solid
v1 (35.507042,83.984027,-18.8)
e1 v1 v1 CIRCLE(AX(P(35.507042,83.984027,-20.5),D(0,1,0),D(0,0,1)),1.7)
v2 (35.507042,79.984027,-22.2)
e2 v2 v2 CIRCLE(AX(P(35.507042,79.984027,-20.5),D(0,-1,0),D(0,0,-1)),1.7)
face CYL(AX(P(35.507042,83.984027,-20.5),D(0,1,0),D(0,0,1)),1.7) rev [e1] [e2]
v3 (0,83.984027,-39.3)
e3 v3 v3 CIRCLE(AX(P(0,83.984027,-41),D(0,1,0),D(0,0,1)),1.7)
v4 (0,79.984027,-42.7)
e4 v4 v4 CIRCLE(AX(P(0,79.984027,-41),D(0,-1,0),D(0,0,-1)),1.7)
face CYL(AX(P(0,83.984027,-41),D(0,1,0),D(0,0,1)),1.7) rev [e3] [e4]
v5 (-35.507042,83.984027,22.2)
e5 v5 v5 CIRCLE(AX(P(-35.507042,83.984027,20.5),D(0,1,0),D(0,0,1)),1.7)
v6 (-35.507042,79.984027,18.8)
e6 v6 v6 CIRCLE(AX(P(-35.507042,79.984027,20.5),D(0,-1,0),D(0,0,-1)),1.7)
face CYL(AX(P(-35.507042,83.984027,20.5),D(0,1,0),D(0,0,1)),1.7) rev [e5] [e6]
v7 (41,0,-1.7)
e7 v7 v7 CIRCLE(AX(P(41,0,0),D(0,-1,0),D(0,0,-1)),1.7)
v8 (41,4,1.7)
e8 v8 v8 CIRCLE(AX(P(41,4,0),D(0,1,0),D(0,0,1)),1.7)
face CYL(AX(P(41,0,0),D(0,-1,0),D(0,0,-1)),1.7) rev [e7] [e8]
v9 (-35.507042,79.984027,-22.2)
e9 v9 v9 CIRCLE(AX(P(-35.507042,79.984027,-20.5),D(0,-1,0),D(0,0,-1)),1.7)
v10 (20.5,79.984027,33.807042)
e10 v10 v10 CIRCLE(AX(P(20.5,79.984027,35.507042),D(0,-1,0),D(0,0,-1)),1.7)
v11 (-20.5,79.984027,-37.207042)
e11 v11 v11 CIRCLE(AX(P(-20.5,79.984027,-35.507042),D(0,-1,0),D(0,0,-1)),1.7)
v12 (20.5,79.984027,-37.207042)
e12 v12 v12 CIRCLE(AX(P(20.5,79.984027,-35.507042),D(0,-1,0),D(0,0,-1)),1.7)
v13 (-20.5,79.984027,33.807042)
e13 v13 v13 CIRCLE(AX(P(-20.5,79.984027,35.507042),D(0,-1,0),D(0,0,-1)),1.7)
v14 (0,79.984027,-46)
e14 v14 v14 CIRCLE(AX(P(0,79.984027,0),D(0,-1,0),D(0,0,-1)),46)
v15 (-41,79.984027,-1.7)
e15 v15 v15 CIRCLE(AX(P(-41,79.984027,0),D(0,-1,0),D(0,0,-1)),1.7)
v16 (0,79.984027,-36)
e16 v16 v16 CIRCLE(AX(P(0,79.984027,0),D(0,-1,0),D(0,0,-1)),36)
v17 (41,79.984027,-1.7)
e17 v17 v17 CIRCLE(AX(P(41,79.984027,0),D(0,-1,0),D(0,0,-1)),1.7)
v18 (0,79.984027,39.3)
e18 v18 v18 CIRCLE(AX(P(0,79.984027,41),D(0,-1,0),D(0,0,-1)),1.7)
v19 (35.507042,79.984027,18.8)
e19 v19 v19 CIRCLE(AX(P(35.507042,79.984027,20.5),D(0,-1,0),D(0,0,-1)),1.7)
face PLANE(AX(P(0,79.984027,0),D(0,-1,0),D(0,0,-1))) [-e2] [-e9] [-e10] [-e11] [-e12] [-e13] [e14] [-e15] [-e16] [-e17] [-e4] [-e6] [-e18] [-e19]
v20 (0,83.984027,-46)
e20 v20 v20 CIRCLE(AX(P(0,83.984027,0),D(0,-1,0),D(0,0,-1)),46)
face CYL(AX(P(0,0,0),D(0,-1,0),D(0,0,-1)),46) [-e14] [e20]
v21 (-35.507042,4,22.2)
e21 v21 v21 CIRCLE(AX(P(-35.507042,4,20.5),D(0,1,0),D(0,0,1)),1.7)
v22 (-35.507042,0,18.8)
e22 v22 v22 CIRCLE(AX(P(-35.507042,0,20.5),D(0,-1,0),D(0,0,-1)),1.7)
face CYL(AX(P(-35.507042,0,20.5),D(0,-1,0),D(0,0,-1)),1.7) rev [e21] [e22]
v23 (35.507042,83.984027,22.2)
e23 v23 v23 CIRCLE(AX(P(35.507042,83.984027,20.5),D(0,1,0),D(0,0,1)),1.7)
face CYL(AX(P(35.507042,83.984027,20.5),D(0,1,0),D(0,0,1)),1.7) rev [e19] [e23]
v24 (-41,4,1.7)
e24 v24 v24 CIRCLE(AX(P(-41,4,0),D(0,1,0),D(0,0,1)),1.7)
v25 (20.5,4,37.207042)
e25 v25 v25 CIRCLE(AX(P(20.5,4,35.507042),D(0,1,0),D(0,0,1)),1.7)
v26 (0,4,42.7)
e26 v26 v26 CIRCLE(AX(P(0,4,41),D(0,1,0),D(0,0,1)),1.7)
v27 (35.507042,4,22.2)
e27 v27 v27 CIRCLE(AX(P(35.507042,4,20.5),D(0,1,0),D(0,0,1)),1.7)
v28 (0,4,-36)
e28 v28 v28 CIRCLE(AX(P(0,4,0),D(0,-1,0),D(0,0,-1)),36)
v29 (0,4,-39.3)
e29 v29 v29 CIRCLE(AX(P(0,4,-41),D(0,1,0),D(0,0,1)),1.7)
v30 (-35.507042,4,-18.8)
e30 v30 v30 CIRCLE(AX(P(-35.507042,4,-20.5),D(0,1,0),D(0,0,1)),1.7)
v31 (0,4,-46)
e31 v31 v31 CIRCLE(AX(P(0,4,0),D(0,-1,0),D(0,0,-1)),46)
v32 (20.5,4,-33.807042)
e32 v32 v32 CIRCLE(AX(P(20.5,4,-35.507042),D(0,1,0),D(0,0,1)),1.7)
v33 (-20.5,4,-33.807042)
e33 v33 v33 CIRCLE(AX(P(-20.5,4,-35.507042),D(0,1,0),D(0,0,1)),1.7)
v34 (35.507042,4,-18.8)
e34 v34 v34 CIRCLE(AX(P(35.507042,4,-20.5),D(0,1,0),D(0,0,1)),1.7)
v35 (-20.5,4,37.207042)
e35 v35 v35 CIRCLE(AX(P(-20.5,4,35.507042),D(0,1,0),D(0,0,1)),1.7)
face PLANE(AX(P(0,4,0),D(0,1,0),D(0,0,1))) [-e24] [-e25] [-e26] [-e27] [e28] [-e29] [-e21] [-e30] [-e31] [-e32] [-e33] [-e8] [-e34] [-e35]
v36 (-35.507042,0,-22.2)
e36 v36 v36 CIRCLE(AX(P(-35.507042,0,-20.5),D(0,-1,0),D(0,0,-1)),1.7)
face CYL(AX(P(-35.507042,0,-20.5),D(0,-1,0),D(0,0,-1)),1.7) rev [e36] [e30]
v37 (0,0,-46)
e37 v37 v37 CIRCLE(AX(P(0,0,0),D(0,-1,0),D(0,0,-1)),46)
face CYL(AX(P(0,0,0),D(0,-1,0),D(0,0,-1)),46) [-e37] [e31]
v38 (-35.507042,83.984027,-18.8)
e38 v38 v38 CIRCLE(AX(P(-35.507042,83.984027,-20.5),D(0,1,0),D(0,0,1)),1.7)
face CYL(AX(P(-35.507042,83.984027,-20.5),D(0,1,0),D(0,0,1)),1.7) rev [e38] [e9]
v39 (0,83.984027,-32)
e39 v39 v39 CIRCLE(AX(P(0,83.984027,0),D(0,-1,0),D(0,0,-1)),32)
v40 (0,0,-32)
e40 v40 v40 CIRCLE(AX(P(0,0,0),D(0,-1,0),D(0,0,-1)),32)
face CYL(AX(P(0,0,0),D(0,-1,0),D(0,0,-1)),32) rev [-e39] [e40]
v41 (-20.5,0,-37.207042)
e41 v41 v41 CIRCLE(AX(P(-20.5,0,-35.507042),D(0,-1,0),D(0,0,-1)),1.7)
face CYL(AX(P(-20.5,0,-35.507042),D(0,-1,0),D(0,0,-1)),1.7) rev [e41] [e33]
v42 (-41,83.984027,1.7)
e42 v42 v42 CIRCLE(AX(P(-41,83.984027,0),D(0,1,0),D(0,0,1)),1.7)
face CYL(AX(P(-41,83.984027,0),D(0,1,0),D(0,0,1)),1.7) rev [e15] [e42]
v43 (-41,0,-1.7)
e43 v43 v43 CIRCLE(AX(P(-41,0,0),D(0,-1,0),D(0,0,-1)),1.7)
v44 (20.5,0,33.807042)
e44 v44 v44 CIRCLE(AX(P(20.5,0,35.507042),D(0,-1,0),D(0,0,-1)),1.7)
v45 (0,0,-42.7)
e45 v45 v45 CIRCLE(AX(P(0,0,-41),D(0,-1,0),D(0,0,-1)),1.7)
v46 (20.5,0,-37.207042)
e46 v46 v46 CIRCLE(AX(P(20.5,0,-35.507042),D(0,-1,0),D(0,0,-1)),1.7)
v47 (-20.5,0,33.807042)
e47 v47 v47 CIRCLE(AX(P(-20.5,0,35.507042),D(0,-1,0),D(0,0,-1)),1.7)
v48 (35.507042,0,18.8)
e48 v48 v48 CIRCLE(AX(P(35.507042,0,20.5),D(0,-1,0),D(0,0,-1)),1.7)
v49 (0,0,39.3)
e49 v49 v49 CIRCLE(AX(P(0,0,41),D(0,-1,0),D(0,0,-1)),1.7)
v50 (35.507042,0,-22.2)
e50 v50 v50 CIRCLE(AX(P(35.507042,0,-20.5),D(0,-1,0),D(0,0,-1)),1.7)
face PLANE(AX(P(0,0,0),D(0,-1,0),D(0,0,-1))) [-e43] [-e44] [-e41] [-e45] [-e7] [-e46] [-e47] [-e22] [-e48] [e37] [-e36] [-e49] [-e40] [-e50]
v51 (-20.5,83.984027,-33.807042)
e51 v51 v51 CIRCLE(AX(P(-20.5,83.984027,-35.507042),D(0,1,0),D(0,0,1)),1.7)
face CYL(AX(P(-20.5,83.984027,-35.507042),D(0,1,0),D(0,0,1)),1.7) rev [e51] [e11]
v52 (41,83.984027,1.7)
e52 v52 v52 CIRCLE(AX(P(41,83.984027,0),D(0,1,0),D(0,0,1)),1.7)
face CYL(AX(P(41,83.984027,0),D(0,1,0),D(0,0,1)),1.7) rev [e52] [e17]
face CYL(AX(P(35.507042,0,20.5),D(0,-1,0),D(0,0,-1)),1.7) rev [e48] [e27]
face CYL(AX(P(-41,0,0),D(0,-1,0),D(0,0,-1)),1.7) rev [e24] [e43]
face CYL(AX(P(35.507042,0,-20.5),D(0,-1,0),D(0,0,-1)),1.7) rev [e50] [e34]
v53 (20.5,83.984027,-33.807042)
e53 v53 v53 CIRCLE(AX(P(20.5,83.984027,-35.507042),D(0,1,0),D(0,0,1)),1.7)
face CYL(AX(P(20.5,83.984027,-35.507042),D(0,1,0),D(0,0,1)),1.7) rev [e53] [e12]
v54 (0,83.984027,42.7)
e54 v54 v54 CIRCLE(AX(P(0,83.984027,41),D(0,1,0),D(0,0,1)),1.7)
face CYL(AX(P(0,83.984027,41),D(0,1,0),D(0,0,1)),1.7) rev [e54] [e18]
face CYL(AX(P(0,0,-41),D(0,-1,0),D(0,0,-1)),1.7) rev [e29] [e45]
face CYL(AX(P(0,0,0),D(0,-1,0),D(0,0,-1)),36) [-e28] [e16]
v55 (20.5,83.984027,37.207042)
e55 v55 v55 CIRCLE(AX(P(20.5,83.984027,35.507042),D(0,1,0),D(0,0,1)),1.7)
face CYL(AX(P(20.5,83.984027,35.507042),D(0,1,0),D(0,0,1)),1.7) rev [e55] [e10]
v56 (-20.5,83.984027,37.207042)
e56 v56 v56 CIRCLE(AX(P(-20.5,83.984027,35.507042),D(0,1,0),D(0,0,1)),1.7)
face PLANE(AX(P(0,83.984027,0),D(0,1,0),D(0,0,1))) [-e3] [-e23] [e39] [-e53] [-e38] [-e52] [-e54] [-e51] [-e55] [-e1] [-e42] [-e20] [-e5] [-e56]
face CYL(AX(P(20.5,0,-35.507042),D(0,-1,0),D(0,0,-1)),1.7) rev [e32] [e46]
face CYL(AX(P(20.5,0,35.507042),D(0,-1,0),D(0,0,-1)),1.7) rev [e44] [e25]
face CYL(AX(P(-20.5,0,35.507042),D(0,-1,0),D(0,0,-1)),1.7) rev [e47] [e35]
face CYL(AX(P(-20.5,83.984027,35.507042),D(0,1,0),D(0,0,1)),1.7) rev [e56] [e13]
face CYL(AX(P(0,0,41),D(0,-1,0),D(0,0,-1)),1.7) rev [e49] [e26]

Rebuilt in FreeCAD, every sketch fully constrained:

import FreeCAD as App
import Part
import Sketcher

doc = App.newDocument("Part")
body = doc.addObject("PartDesign::Body", "Body")

# Sketch on XY plane
sketch1 = body.newObject("Sketcher::SketchObject", "Sketch")
sketch1.AttachmentSupport = (doc.getObject("XY_Plane"), [""])
sketch1.MapMode = "FlatFace"
sketch1.addGeometry([
    Part.LineSegment(App.Vector(-32, 0, 0), App.Vector(-32, 83.984027, 0)),  # 0
    Part.LineSegment(App.Vector(-32, 83.984027, 0), App.Vector(-46, 83.984027, 0)),  # 1
    Part.LineSegment(App.Vector(-46, 83.984027, 0), App.Vector(-46, 79.984027, 0)),  # 2
    Part.LineSegment(App.Vector(-46, 79.984027, 0), App.Vector(-36, 79.984027, 0)),  # 3
    Part.LineSegment(App.Vector(-36, 79.984027, 0), App.Vector(-36, 4, 0)),  # 4
    Part.LineSegment(App.Vector(-36, 4, 0), App.Vector(-46, 4, 0)),  # 5
    Part.LineSegment(App.Vector(-46, 4, 0), App.Vector(-46, 0, 0)),  # 6
    Part.LineSegment(App.Vector(-46, 0, 0), App.Vector(-32, 0, 0)),  # 7
], False)
sketch1.addConstraint([
    Sketcher.Constraint("Coincident", 0, 2, 1, 1),
    Sketcher.Constraint("Coincident", 1, 2, 2, 1),
    Sketcher.Constraint("Coincident", 2, 2, 3, 1),
    Sketcher.Constraint("Coincident", 3, 2, 4, 1),
    Sketcher.Constraint("Coincident", 4, 2, 5, 1),
    Sketcher.Constraint("Coincident", 5, 2, 6, 1),
    Sketcher.Constraint("Coincident", 6, 2, 7, 1),
    Sketcher.Constraint("Coincident", 7, 2, 0, 1),
    Sketcher.Constraint("Vertical", 0),
    Sketcher.Constraint("Horizontal", 1),
    Sketcher.Constraint("Vertical", 2),
    Sketcher.Constraint("Horizontal", 3),
    Sketcher.Constraint("Vertical", 4),
    Sketcher.Constraint("Horizontal", 5),
    Sketcher.Constraint("Vertical", 6),
    Sketcher.Constraint("Horizontal", 7),
    Sketcher.Constraint("PointOnObject", 6, 2, -1),
    Sketcher.Constraint("Vertical", 2, 2, 5, 2),
    Sketcher.Constraint("Equal", 2, 6),
    Sketcher.Constraint("DistanceX", 1, 2, 1, 1, 14.0),
    Sketcher.Constraint("DistanceX", 3, 1, 3, 2, 10.0),
    Sketcher.Constraint("DistanceY", 2, 2, 2, 1, 4.0),
    Sketcher.Constraint("DistanceX", 0, 2, -1, 1, 32.0),
    Sketcher.Constraint("DistanceY", 0, 1, 0, 2, 83.984027),
])
revolution = body.newObject("PartDesign::Revolution", "Revolution")
revolution.Profile = sketch1
revolution.ReferenceAxis = (sketch1, ["V_Axis"])
revolution.Angle = 360

# Sketch on XZ plane
sketch2 = body.newObject("Sketcher::SketchObject", "Sketch001")
sketch2.AttachmentSupport = (doc.getObject("XZ_Plane"), [""])
sketch2.MapMode = "FlatFace"
sketch2.AttachmentOffset = App.Placement(App.Vector(0, 0, -83.984027), App.Rotation())
sketch2.addGeometry(Part.Circle(App.Vector(0, -41, 0), App.Vector(0, 0, 1), 1.7), False)
sketch2.addConstraint([
    Sketcher.Constraint("PointOnObject", 0, 3, -2),
    Sketcher.Constraint("Diameter", 0, 3.4),
    Sketcher.Constraint("DistanceY", 0, 3, -1, 1, 41.0),
])
doc.recompute()
hole = body.newObject("PartDesign::Hole", "Hole")
hole.Profile = sketch2
hole.ThreadType = "None"
hole.Diameter = 3.4
hole.DepthType = "Dimension"
hole.Depth = 4.001
hole.DrillPoint = "Flat"
hole.Reversed = True

# Sketch on XZ plane
sketch3 = body.newObject("Sketcher::SketchObject", "Sketch002")
sketch3.AttachmentSupport = (doc.getObject("XZ_Plane"), [""])
sketch3.MapMode = "FlatFace"
sketch3.addGeometry(Part.Circle(App.Vector(0, -41, 0), App.Vector(0, 0, 1), 1.7), False)
sketch3.addConstraint([
    Sketcher.Constraint("PointOnObject", 0, 3, -2),
    Sketcher.Constraint("Diameter", 0, 3.4),
    Sketcher.Constraint("DistanceY", 0, 3, -1, 1, 41.0),
])
doc.recompute()
hole2 = body.newObject("PartDesign::Hole", "Hole001")
hole2.Profile = sketch3
hole2.ThreadType = "None"
hole2.Diameter = 3.4
hole2.DepthType = "Dimension"
hole2.Depth = 4.001
hole2.DrillPoint = "Flat"
doc.recompute()

polarpattern = body.newObject("PartDesign::PolarPattern", "PolarPattern")
polarpattern.Originals = [hole, hole2]
polarpattern.Axis = (doc.getObject("Y_Axis"), [""])
polarpattern.Angle = 360
polarpattern.Occurrences = 12
body.Tip = polarpattern

doc.recompute()
